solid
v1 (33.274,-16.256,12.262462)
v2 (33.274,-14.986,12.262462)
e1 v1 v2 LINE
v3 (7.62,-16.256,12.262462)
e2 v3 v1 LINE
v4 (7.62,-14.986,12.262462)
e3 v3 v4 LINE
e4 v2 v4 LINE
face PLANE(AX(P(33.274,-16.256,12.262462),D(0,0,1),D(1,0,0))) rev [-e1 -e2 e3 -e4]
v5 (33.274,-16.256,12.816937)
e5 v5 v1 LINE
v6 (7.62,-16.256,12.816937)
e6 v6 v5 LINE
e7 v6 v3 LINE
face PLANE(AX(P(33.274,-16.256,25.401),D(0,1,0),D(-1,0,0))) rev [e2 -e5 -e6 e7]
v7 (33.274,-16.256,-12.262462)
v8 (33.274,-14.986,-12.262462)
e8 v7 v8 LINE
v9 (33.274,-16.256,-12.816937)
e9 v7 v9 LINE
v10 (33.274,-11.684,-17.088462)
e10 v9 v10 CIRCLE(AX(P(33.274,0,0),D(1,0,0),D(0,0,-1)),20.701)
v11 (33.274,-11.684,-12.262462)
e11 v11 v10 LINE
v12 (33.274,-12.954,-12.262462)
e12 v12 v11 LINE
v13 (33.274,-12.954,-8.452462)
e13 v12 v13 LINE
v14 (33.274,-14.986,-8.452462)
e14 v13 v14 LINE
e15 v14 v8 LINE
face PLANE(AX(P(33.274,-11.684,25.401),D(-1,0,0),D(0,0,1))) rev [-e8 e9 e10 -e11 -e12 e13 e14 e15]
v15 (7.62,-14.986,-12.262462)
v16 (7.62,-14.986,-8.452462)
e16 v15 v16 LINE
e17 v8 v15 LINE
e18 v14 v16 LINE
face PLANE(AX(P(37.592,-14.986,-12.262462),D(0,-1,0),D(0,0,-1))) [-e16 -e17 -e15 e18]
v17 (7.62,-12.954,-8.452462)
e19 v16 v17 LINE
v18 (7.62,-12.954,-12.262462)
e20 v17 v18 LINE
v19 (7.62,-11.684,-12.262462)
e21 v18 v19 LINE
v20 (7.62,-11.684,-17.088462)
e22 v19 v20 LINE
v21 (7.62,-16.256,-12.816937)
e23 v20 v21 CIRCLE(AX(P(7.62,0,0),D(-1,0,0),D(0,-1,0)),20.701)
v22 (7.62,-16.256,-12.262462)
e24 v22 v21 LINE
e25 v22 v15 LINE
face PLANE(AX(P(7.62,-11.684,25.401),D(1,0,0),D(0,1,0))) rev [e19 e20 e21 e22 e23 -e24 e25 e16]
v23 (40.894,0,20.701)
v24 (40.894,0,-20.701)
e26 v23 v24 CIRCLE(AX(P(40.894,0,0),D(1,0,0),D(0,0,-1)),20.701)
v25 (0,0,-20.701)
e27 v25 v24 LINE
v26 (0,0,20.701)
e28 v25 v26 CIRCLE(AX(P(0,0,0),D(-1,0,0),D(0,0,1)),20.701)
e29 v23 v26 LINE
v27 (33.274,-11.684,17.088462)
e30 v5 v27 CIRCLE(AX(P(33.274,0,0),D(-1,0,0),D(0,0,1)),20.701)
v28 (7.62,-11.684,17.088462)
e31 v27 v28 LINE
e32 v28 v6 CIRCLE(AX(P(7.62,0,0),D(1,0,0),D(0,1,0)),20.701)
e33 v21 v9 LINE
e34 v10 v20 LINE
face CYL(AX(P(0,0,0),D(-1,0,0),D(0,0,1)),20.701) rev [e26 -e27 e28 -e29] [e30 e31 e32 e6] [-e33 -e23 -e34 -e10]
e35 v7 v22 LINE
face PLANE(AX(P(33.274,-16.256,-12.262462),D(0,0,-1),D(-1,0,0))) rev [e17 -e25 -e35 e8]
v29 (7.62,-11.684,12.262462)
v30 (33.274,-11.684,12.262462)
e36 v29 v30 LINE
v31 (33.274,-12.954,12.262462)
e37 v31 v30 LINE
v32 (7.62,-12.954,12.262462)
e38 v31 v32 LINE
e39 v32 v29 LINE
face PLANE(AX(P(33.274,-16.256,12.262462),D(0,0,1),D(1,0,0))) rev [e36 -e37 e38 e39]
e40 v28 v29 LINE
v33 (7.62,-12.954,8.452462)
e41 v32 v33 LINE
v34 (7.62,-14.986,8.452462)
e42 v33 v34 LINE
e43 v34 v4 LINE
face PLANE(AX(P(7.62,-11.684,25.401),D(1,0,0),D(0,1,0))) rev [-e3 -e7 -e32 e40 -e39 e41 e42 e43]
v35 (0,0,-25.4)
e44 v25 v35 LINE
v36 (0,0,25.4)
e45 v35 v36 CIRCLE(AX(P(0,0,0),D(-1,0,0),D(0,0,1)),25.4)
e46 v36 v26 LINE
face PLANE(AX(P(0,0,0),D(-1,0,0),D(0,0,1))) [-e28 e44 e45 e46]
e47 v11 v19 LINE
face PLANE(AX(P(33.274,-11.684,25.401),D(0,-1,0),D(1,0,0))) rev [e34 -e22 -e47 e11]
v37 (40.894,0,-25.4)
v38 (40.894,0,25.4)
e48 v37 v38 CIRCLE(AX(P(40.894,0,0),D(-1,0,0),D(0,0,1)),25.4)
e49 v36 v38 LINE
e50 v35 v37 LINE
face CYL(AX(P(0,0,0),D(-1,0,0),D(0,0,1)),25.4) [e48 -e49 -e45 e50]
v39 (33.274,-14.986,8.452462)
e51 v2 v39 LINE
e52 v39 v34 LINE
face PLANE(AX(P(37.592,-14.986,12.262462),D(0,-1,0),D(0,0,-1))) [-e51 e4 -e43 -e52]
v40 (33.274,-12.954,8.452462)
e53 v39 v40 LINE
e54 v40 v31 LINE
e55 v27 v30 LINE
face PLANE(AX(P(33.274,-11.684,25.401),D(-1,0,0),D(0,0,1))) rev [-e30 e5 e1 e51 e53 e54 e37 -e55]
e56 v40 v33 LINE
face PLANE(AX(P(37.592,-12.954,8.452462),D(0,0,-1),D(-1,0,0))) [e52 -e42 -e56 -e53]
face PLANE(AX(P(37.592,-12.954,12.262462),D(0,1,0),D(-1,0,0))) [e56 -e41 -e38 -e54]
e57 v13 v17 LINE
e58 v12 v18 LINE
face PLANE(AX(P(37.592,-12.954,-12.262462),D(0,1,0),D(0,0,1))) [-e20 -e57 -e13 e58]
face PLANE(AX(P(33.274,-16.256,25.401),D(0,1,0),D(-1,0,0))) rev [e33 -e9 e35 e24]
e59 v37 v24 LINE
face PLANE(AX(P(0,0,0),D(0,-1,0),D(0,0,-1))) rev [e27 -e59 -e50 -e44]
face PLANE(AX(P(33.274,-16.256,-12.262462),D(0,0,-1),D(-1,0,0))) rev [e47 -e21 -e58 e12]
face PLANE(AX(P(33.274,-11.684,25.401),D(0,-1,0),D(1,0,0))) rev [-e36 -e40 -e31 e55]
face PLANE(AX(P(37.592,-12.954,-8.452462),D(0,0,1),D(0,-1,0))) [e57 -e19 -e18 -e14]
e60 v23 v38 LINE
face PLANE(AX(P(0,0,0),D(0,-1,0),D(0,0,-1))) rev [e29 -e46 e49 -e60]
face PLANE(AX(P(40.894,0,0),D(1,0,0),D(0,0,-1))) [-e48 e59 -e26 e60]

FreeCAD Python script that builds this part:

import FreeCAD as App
import Part
import Sketcher
Q = App.Units.Quantity

doc = App.newDocument("Part")
body = doc.addObject("PartDesign::Body", "Body")

sketch1 = body.newObject("Sketcher::SketchObject", "Sketch")
sketch1.AttachmentSupport = (doc.getObject("XZ_Plane"), [""])
sketch1.MapMode = "FlatFace"
sketch1.addGeometry([
    Part.LineSegment(App.Vector(0, 0, 0), App.Vector(0, 25, 0)),
    Part.LineSegment(App.Vector(0, 25, 0), App.Vector(41, 25, 0)),
    Part.LineSegment(App.Vector(41, 25, 0), App.Vector(41, 0, 0)),
    Part.LineSegment(App.Vector(41, 0, 0), App.Vector(0, 0, 0)),
], False)
sketch1.addConstraint([
    Sketcher.Constraint("Coincident", 0, 2, 1, 1),
    Sketcher.Constraint("Coincident", 1, 2, 2, 1),
    Sketcher.Constraint("Coincident", 2, 2, 3, 1),
    Sketcher.Constraint("Coincident", 3, 2, 0, 1),
    Sketcher.Constraint("Vertical", 0),
    Sketcher.Constraint("Horizontal", 1),
    Sketcher.Constraint("Vertical", 2),
    Sketcher.Constraint("Horizontal", 3),
    Sketcher.Constraint("Coincident", 3, 2, -1, 1),
    Sketcher.Constraint("DistanceY", 0, 1, 0, 2, Q("1 in")),
    Sketcher.Constraint("DistanceX", 1, 1, 1, 2, Q("1.61 in")),
])
revolution = body.newObject("PartDesign::Revolution", "Revolution")
revolution.Profile = sketch1
revolution.ReferenceAxis = (sketch1, ["H_Axis"])
revolution.Angle = 180

sketch2 = body.newObject("Sketcher::SketchObject", "Sketch001")
sketch2.AttachmentSupport = (doc.getObject("XZ_Plane"), [""])
sketch2.MapMode = "FlatFace"
sketch2.addGeometry([
    Part.LineSegment(App.Vector(41, 0, 0), App.Vector(0, 0, 0)),
    Part.LineSegment(App.Vector(0, 0, 0), App.Vector(0, 21, 0)),
    Part.LineSegment(App.Vector(0, 21, 0), App.Vector(41, 21, 0)),
    Part.LineSegment(App.Vector(41, 21, 0), App.Vector(41, 0, 0)),
], False)
sketch2.addConstraint([
    Sketcher.Constraint("Coincident", 0, 2, 1, 1),
    Sketcher.Constraint("Coincident", 1, 2, 2, 1),
    Sketcher.Constraint("Coincident", 2, 2, 3, 1),
    Sketcher.Constraint("Coincident", 3, 2, 0, 1),
    Sketcher.Constraint("Horizontal", 0),
    Sketcher.Constraint("Vertical", 1),
    Sketcher.Constraint("Horizontal", 2),
    Sketcher.Constraint("Vertical", 3),
    Sketcher.Constraint("Coincident", 0, 2, -1, 1),
    Sketcher.Constraint("DistanceX", 0, 2, 0, 1, Q("1.63 in")),
    Sketcher.Constraint("DistanceY", 1, 1, 1, 2, Q("0.815 in")),
])
groove = body.newObject("PartDesign::Groove", "Groove")
groove.Profile = sketch2
groove.ReferenceAxis = (sketch2, ["H_Axis"])
groove.Angle = 360

sketch3 = body.newObject("Sketcher::SketchObject", "Sketch002")
sketch3.AttachmentSupport = (doc.getObject("XY_Plane"), [""])
sketch3.MapMode = "FlatFace"
sketch3.addGeometry([
    Part.LineSegment(App.Vector(7.6, -11.7, 0), App.Vector(7.6, -16.3, 0)),
    Part.LineSegment(App.Vector(7.6, -16.3, 0), App.Vector(33.3, -16.3, 0)),
    Part.LineSegment(App.Vector(33.3, -16.3, 0), App.Vector(33.3, -11.7, 0)),
    Part.LineSegment(App.Vector(33.3, -11.7, 0), App.Vector(7.6, -11.7, 0)),
], False)
sketch3.addConstraint([
    Sketcher.Constraint("Coincident", 0, 2, 1, 1),
    Sketcher.Constraint("Coincident", 1, 2, 2, 1),
    Sketcher.Constraint("Coincident", 2, 2, 3, 1),
    Sketcher.Constraint("Coincident", 3, 2, 0, 1),
    Sketcher.Constraint("Vertical", 0),
    Sketcher.Constraint("Horizontal", 1),
    Sketcher.Constraint("Vertical", 2),
    Sketcher.Constraint("Horizontal", 3),
    Sketcher.Constraint("DistanceX", 1, 1, 1, 2, Q("1.01 in")),
    Sketcher.Constraint("DistanceY", 0, 2, 0, 1, Q("0.18 in")),
    Sketcher.Constraint("DistanceX", -1, 1, 0, 2, Q("0.3 in")),
    Sketcher.Constraint("DistanceY", 0, 2, -1, 1, Q("0.64 in")),
])
pad1 = body.newObject("PartDesign::Pad", "Pad")
pad1.Profile = sketch3
pad1.Type = "UpToFirst"

sketch4 = body.newObject("Sketcher::SketchObject", "Sketch003")
sketch4.AttachmentSupport = (doc.getObject("XY_Plane"), [""])
sketch4.MapMode = "FlatFace"
sketch4.addGeometry([
    Part.LineSegment(App.Vector(7.6, -11.7, 0), App.Vector(7.6, -16.3, 0)),
    Part.LineSegment(App.Vector(7.6, -16.3, 0), App.Vector(33.3, -16.3, 0)),
    Part.LineSegment(App.Vector(33.3, -16.3, 0), App.Vector(33.3, -11.7, 0)),
    Part.LineSegment(App.Vector(33.3, -11.7, 0), App.Vector(7.6, -11.7, 0)),
], False)
sketch4.addConstraint([
    Sketcher.Constraint("Coincident", 0, 2, 1, 1),
    Sketcher.Constraint("Coincident", 1, 2, 2, 1),
    Sketcher.Constraint("Coincident", 2, 2, 3, 1),
    Sketcher.Constraint("Coincident", 3, 2, 0, 1),
    Sketcher.Constraint("Vertical", 0),
    Sketcher.Constraint("Horizontal", 1),
    Sketcher.Constraint("Vertical", 2),
    Sketcher.Constraint("Horizontal", 3),
    Sketcher.Constraint("DistanceX", 1, 1, 1, 2, Q("1.01 in")),
    Sketcher.Constraint("DistanceY", 0, 2, 0, 1, Q("0.18 in")),
    Sketcher.Constraint("DistanceX", -1, 1, 0, 2, Q("0.3 in")),
    Sketcher.Constraint("DistanceY", 0, 2, -1, 1, Q("0.64 in")),
])
pad2 = body.newObject("PartDesign::Pad", "Pad001")
pad2.Profile = sketch4
pad2.Type = "UpToFirst"
pad2.Reversed = True

sketch5 = body.newObject("Sketcher::SketchObject", "Sketch004")
sketch5.AttachmentSupport = (doc.getObject("XZ_Plane"), [""])
sketch5.MapMode = "FlatFace"
sketch5.AttachmentOffset = App.Placement(App.Vector(0, 0, 0.46 * 25.4), App.Rotation())
sketch5.addGeometry([
    Part.LineSegment(App.Vector(8, -12, 0), App.Vector(8, 12, 0)),
    Part.LineSegment(App.Vector(8, 12, 0), App.Vector(33, 12, 0)),
    Part.LineSegment(App.Vector(33, 12, 0), App.Vector(33, -12, 0)),
    Part.LineSegment(App.Vector(33, -12, 0), App.Vector(8, -12, 0)),
], False)
sketch5.addConstraint([
    Sketcher.Constraint("Coincident", 0, 2, 1, 1),
    Sketcher.Constraint("Coincident", 1, 2, 2, 1),
    Sketcher.Constraint("Coincident", 2, 2, 3, 1),
    Sketcher.Constraint("Coincident", 3, 2, 0, 1),
    Sketcher.Constraint("Vertical", 0),
    Sketcher.Constraint("Horizontal", 1),
    Sketcher.Constraint("Vertical", 2),
    Sketcher.Constraint("Horizontal", 3),
    Sketcher.Constraint("DistanceX", 1, 1, 1, 2, Q("1.01 in")),
    Sketcher.Constraint("DistanceX", -1, 1, 0, 2, Q("0.3 in")),
    Sketcher.Constraint("DistanceY", 0, 1, 0, 2, Q("24.524925 mm")),
    Sketcher.Constraint("DistanceY", -1, 1, 0, 2, Q("12.262462 mm")),
])
pocket1 = body.newObject("PartDesign::Pocket", "Pocket")
pocket1.Profile = sketch5
pocket1.Length = Q("0.18 in")
pocket1.Reversed = True

sketch6 = body.newObject("Sketcher::SketchObject", "Sketch005")
sketch6.AttachmentSupport = (doc.getObject("YZ_Plane"), [""])
sketch6.MapMode = "FlatFace"
sketch6.AttachmentOffset = App.Placement(App.Vector(0, 0, 0.3 * 25.4), App.Rotation())
sketch6.addGeometry([
    Part.LineSegment(App.Vector(-13, -12.3, 0), App.Vector(-15, -12.3, 0)),
    Part.LineSegment(App.Vector(-15, -12.3, 0), App.Vector(-15, -8.5, 0)),
    Part.LineSegment(App.Vector(-15, -8.5, 0), App.Vector(-13, -8.5, 0)),
    Part.LineSegment(App.Vector(-13, -8.5, 0), App.Vector(-13, -12.3, 0)),
    Part.LineSegment(App.Vector(-13, 8.5, 0), App.Vector(-15, 8.5, 0)),
    Part.LineSegment(App.Vector(-15, 8.5, 0), App.Vector(-15, 12.3, 0)),
    Part.LineSegment(App.Vector(-15, 12.3, 0), App.Vector(-13, 12.3, 0)),
    Part.LineSegment(App.Vector(-13, 12.3, 0), App.Vector(-13, 8.5, 0)),
], False)
sketch6.addConstraint([
    Sketcher.Constraint("Coincident", 0, 2, 1, 1),
    Sketcher.Constraint("Coincident", 1, 2, 2, 1),
    Sketcher.Constraint("Coincident", 2, 2, 3, 1),
    Sketcher.Constraint("Coincident", 3, 2, 0, 1),
    Sketcher.Constraint("Coincident", 4, 2, 5, 1),
    Sketcher.Constraint("Coincident", 5, 2, 6, 1),
    Sketcher.Constraint("Coincident", 6, 2, 7, 1),
    Sketcher.Constraint("Coincident", 7, 2, 4, 1),
    Sketcher.Constraint("Horizontal", 0),
    Sketcher.Constraint("Vertical", 1),
    Sketcher.Constraint("Horizontal", 2),
    Sketcher.Constraint("Vertical", 3),
    Sketcher.Constraint("Horizontal", 4),
    Sketcher.Constraint("Vertical", 5),
    Sketcher.Constraint("Horizontal", 6),
    Sketcher.Constraint("Vertical", 7),
    Sketcher.Constraint("Symmetric", 1, 2, 4, 2, -1),
    Sketcher.Constraint("Symmetric", 3, 2, 6, 2, -1),
    Sketcher.Constraint("DistanceX", 0, 2, 0, 1, Q("0.08 in")),
    Sketcher.Constraint("DistanceY", 1, 1, 1, 2, Q("0.15 in")),
    Sketcher.Constraint("DistanceX", 0, 2, -1, 1, Q("0.59 in")),
    Sketcher.Constraint("DistanceY", 0, 2, -1, 1, Q("12.262462 mm")),
])
pad3 = body.newObject("PartDesign::Pad", "Pad002")
pad3.Profile = sketch6
pad3.Length = Q("1.01 in")

doc.recompute()
